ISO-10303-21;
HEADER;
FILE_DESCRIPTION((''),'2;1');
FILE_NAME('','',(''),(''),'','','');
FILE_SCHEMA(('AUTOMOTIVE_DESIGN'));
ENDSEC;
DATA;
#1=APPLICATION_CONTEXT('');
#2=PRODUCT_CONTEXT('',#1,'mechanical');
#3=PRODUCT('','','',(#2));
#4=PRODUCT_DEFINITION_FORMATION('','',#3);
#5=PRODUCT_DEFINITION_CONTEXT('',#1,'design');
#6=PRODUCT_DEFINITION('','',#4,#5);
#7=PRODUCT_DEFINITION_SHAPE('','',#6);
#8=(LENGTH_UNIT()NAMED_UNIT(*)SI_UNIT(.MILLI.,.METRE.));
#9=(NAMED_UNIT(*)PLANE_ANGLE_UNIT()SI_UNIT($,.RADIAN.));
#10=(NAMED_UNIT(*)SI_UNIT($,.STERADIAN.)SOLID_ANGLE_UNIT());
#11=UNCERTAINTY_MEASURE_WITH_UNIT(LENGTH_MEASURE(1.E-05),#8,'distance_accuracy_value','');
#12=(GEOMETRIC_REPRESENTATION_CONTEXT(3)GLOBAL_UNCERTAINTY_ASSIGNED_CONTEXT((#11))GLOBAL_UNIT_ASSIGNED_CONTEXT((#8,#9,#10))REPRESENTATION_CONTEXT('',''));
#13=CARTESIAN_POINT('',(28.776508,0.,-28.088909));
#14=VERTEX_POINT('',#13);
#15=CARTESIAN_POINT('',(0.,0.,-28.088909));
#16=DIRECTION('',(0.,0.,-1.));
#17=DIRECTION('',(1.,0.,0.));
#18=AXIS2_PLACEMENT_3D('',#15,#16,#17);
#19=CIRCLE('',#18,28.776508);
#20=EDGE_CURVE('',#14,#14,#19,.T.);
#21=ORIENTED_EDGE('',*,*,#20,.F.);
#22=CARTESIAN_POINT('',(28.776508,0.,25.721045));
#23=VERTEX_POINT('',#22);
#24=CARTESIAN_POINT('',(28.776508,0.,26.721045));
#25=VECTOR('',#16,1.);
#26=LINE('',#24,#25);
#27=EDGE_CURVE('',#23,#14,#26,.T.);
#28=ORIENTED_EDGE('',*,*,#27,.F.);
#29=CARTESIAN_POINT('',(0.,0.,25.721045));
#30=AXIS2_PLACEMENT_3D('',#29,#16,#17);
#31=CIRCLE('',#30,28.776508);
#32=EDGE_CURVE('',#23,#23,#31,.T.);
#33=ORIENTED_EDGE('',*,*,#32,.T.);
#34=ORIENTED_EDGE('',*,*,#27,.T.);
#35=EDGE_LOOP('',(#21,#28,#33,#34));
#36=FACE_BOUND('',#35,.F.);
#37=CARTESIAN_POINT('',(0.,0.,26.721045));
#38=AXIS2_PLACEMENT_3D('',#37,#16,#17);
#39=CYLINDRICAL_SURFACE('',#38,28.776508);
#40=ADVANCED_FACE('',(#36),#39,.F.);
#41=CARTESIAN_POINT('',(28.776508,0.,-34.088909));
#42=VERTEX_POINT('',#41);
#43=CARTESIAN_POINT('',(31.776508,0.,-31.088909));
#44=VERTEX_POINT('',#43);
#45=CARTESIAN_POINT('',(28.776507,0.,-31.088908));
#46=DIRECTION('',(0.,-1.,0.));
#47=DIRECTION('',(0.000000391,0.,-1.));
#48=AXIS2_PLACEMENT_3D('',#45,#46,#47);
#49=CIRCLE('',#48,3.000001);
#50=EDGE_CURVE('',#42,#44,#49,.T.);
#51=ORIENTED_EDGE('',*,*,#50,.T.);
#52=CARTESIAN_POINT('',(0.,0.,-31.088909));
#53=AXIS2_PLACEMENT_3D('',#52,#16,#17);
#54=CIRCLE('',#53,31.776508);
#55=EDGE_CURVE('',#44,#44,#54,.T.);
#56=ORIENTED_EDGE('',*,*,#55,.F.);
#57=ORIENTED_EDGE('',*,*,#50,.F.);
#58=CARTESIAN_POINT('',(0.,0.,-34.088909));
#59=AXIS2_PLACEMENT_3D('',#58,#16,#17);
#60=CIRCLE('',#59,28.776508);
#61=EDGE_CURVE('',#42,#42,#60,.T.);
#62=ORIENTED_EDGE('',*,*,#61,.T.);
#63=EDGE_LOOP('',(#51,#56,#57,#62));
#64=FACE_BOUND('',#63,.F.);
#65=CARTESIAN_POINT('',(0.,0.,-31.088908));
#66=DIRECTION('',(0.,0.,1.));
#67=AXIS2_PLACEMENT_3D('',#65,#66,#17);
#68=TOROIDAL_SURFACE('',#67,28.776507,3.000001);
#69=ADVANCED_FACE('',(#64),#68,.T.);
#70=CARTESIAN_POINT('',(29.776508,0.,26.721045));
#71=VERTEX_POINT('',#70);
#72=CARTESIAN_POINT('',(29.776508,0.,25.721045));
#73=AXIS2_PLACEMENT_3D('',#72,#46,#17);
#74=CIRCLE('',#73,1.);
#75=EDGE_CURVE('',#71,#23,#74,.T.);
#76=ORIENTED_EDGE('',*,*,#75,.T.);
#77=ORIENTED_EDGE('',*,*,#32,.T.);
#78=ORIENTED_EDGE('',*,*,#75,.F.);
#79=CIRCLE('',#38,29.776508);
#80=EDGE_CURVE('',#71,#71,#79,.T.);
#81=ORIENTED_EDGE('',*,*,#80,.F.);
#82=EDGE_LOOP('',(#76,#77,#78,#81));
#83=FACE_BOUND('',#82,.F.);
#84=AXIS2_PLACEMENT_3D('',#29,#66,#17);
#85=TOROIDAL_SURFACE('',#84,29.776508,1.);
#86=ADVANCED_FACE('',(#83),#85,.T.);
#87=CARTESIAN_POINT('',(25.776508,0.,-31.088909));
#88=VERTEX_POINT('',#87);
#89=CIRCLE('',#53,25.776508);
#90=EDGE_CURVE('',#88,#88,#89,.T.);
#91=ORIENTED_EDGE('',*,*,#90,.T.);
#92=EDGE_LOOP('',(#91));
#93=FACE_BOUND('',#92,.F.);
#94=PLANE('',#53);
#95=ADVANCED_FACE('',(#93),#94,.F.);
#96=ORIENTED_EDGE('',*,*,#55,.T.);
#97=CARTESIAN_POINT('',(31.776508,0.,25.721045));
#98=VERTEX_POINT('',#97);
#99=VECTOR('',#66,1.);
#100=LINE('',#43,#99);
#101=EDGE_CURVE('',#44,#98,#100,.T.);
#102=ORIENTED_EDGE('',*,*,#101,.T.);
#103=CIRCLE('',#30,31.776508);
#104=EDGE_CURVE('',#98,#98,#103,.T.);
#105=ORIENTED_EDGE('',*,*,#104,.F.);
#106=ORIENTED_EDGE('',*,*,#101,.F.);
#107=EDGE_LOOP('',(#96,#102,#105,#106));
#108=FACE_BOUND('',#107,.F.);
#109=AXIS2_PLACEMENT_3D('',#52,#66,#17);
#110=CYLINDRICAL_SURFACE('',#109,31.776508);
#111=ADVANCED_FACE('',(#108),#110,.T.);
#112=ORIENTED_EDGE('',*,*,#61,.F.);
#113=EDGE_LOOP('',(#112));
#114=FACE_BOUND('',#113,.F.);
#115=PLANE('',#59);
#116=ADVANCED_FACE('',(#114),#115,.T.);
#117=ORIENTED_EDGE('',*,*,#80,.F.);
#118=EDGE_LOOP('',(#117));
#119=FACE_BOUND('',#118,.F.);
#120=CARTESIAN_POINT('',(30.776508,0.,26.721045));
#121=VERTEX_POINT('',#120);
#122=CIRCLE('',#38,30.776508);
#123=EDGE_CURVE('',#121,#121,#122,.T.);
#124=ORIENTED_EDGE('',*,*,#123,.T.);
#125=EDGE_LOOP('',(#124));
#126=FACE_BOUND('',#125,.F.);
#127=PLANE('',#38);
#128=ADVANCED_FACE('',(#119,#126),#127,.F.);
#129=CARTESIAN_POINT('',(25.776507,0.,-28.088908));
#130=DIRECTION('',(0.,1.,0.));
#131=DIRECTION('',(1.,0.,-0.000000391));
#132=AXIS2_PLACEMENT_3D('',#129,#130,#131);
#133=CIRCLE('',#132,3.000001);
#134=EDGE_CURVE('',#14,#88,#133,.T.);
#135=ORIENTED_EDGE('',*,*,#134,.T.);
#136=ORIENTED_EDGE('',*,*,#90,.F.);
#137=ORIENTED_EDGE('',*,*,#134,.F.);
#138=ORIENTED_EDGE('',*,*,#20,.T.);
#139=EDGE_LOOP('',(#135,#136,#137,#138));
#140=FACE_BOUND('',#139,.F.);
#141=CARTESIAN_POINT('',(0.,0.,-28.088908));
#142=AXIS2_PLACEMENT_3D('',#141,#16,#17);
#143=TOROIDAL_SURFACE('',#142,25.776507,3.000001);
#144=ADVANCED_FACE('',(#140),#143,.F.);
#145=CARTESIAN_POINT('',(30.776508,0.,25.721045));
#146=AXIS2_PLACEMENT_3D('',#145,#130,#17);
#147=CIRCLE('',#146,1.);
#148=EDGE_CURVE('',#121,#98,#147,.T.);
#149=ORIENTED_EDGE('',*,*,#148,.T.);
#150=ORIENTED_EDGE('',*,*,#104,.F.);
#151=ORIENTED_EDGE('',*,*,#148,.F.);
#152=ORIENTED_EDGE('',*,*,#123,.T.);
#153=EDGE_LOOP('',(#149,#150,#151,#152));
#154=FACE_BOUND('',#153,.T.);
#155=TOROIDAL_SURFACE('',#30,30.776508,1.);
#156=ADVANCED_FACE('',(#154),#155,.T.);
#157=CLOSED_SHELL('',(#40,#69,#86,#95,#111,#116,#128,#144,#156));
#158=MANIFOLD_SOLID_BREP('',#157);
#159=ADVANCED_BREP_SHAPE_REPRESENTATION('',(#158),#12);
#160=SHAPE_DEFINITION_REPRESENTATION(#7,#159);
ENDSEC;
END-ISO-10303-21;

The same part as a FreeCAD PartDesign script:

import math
import FreeCAD as App
import Part
import Sketcher


def edges_at(feature, points):
    """Names of the edges that pass closest to the given points."""
    edges = feature.Shape.Edges
    near = lambda p: min(range(len(edges)), key=lambda i: edges[i].distToShape(Part.Vertex(*p))[0])
    return sorted({f"Edge{near(p) + 1}" for p in points})

doc = App.newDocument("Part")
body = doc.addObject("PartDesign::Body", "Body")

sketch1 = doc.addObject("Sketcher::SketchObject", "Sketch")
body.addObject(sketch1)
sketch1.AttachmentSupport = (doc.XZ_Plane, [""])
sketch1.MapMode = "FlatFace"
sketch1.addGeometry([
    Part.LineSegment(App.Vector(25.776508, -31.088909, 0), App.Vector(0, -31.088909, 0)),
    Part.LineSegment(App.Vector(0, -31.088909, 0), App.Vector(0, -34.088909, 0)),
    Part.LineSegment(App.Vector(0, -34.088909, 0), App.Vector(28.776508, -34.088909, 0)),
    Part.ArcOfCircle(Part.Circle(App.Vector(28.776507, -31.088908, 0), App.Vector(0, 0, 1), 3.000001), math.radians(-89.999978), math.radians(-0.000022)),
    Part.LineSegment(App.Vector(31.776508, -31.088909, 0), App.Vector(31.776508, 26.721045, 0)),
    Part.LineSegment(App.Vector(31.776508, 26.721045, 0), App.Vector(28.776508, 26.721045, 0)),
    Part.LineSegment(App.Vector(28.776508, 26.721045, 0), App.Vector(28.776508, -28.088909, 0)),
    Part.ArcOfCircle(Part.Circle(App.Vector(25.776507, -28.088908, 0), App.Vector(0, 0, 1), 3.000001), math.radians(-89.999978), math.radians(-0.000022)),
], False)
sketch1.addConstraint([
    Sketcher.Constraint("Coincident", 0, 2, 1, 1),
    Sketcher.Constraint("Coincident", 1, 2, 2, 1),
    Sketcher.Constraint("Tangent", 2, 2, 3, 1),
    Sketcher.Constraint("Tangent", 3, 2, 4, 1),
    Sketcher.Constraint("Coincident", 4, 2, 5, 1),
    Sketcher.Constraint("Coincident", 5, 2, 6, 1),
    Sketcher.Constraint("Tangent", 6, 2, 7, 2),
    Sketcher.Constraint("Tangent", 7, 1, 0, 1),
    Sketcher.Constraint("Horizontal", 0),
    Sketcher.Constraint("Vertical", 1),
    Sketcher.Constraint("Horizontal", 2),
    Sketcher.Constraint("Vertical", 4),
    Sketcher.Constraint("Horizontal", 5),
    Sketcher.Constraint("Vertical", 6),
    Sketcher.Constraint("Equal", 3, 7),
    Sketcher.Constraint("PointOnObject", 0, 2, -2),
    Sketcher.Constraint("Horizontal", 3, 3, 0, 2),
    Sketcher.Constraint("Vertical", 2, 2, 5, 2),
    Sketcher.Constraint("Radius", 3, 3.000001),
    Sketcher.Constraint("DistanceX", 0, 2, 0, 1, 25.776508),
    Sketcher.Constraint("DistanceY", 4, 1, 4, 2, 57.809954),
    Sketcher.Constraint("DistanceY", 0, 2, -1, 1, 31.088909),
])
revolution = doc.addObject("PartDesign::Revolution", "Revolution")
body.addObject(revolution)
revolution.Profile = sketch1
revolution.ReferenceAxis = (sketch1, ["V_Axis"])
revolution.Angle = 360
doc.recompute()

fillet = doc.addObject("PartDesign::Fillet", "Fillet")
body.addObject(fillet)
fillet.Base = (revolution, edges_at(revolution, [(-28.777, 0, 26.721)]))
fillet.Radius = 1
doc.recompute()

fillet2 = doc.addObject("PartDesign::Fillet", "Fillet001")
body.addObject(fillet2)
fillet2.Base = (fillet, edges_at(fillet, [(-31.777, 0, 26.721)]))
fillet2.Radius = 1

doc.recompute()
